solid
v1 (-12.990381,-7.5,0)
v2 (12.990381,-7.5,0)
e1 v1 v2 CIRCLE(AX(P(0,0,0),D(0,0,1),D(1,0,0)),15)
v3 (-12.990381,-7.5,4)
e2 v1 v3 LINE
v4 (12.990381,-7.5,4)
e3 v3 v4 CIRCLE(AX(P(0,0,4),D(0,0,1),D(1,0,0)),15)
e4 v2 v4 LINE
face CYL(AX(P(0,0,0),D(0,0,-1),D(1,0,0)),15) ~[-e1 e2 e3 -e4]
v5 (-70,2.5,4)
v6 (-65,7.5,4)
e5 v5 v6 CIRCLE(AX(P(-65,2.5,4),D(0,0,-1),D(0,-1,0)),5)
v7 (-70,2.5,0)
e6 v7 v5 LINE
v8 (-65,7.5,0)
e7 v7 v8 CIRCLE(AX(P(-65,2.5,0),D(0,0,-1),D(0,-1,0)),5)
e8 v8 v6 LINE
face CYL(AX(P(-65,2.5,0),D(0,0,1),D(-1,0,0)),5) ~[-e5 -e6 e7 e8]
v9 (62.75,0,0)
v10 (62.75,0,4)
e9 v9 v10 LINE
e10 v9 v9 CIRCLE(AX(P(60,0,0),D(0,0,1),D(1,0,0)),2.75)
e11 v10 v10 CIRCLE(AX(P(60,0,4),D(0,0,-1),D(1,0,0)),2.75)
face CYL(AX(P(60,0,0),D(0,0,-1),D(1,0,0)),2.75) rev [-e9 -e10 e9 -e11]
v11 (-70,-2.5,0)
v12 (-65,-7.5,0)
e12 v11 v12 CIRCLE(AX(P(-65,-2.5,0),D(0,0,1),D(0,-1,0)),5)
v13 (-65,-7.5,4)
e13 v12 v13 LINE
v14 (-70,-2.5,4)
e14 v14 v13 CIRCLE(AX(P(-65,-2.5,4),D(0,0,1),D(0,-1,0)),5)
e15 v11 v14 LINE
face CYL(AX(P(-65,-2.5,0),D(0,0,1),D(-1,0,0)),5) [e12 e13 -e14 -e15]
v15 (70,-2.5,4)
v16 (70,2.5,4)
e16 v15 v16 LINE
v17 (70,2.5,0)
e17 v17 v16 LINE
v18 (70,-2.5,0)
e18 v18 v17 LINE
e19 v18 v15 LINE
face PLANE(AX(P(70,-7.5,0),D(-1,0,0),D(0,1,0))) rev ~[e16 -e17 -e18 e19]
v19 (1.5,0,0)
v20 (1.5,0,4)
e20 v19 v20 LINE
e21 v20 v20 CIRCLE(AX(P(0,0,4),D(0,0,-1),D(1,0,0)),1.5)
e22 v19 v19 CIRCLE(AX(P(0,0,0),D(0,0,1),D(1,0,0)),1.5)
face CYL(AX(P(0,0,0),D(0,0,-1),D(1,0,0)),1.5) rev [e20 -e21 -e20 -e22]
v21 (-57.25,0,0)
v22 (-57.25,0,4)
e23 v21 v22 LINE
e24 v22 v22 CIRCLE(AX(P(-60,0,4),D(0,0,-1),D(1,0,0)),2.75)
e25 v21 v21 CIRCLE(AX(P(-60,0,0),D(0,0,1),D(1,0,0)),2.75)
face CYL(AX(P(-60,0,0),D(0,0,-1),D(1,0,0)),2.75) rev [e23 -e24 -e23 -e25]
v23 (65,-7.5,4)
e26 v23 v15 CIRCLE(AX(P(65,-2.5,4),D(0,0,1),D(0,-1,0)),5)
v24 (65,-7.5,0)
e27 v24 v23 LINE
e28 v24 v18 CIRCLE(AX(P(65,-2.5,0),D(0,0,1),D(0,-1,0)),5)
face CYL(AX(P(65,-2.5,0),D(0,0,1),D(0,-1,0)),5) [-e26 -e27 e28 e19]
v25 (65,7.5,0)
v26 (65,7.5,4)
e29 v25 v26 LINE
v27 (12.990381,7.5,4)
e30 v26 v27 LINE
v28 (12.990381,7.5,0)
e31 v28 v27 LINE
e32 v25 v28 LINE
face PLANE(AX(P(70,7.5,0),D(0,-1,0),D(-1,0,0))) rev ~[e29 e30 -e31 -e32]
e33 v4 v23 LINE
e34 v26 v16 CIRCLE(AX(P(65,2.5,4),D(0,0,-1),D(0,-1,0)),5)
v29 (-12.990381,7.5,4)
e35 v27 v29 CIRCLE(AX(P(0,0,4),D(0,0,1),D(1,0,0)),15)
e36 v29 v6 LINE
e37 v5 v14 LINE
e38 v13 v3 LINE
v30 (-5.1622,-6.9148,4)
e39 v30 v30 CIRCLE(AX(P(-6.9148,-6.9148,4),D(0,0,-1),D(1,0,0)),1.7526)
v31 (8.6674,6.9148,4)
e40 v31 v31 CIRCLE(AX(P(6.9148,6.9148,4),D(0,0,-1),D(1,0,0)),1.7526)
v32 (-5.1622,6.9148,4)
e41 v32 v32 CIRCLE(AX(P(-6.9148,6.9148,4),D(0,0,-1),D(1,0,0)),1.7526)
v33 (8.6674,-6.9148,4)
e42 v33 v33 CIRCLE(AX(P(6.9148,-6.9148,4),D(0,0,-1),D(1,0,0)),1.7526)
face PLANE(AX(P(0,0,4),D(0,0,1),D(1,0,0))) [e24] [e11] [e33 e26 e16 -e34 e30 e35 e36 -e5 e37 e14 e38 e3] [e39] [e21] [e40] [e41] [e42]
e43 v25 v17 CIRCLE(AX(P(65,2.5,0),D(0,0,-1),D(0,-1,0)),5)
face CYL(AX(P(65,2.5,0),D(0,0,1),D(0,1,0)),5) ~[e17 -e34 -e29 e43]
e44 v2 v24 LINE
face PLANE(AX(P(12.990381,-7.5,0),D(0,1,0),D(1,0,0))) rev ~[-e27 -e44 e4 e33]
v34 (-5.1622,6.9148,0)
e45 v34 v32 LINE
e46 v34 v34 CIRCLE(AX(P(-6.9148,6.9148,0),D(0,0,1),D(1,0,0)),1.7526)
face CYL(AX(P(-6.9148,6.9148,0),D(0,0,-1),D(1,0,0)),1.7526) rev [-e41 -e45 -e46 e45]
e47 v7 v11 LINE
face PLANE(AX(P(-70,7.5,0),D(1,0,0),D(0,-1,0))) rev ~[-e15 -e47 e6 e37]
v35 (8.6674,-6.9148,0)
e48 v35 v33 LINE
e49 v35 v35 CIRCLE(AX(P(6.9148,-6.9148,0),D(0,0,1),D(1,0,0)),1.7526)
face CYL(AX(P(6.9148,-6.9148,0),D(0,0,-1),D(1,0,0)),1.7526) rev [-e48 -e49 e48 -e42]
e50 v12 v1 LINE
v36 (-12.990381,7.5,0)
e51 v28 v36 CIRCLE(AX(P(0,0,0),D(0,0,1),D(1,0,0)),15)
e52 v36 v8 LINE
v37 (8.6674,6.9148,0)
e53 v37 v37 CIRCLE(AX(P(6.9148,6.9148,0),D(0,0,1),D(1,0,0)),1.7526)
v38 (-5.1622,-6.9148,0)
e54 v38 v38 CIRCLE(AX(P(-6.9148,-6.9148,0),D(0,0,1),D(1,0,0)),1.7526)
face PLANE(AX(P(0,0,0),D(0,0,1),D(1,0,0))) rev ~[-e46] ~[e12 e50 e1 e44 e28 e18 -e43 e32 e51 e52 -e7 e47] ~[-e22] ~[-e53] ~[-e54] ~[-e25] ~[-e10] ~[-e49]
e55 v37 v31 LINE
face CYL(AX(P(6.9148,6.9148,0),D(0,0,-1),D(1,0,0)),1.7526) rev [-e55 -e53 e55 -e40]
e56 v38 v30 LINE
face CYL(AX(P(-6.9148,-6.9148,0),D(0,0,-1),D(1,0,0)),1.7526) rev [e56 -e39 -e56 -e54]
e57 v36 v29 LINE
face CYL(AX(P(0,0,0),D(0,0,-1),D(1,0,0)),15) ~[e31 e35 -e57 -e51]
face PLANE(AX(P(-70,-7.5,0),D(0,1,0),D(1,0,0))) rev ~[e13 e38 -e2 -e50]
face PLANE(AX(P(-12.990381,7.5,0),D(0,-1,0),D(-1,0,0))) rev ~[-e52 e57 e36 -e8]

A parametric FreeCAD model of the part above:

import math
import FreeCAD as App
import Part
import Sketcher
from FreeCAD import Vector


def edges_at(feature, points):
    """Names of the edges that pass closest to the given points."""
    edges = feature.Shape.Edges
    near = lambda p: min(range(len(edges)), key=lambda i: edges[i].distToShape(Part.Vertex(*p))[0])
    return sorted({f"Edge{near(p) + 1}" for p in points})

doc = App.newDocument("Part")
body = doc.addObject("PartDesign::Body", "Body")

# Sketch on XY plane
sketch1 = body.newObject("Sketcher::SketchObject", "Sketch")
sketch1.AttachmentSupport = (doc.getObject("XY_Plane"), [""])
sketch1.MapMode = "FlatFace"
sketch1.addGeometry([
    Part.LineSegment(Vector(-70, 7.5, 0), Vector(-70, -7.5, 0)),  # 0
    Part.LineSegment(Vector(-70, -7.5, 0), Vector(-12.990381, -7.5, 0)),  # 1
    Part.ArcOfCircle(Part.Circle(Vector(0, 0, 0), Vector(0, 0, 1), 15), math.radians(-150), math.radians(-30)),  # 2
    Part.LineSegment(Vector(12.990381, -7.5, 0), Vector(70, -7.5, 0)),  # 3
    Part.LineSegment(Vector(70, -7.5, 0), Vector(70, 7.5, 0)),  # 4
    Part.LineSegment(Vector(70, 7.5, 0), Vector(12.990381, 7.5, 0)),  # 5
    Part.ArcOfCircle(Part.Circle(Vector(0, 0, 0), Vector(0, 0, 1), 15), math.radians(30), math.radians(150)),  # 6
    Part.LineSegment(Vector(-12.990381, 7.5, 0), Vector(-70, 7.5, 0)),  # 7
], False)
sketch1.addConstraint([
    Sketcher.Constraint("Coincident", 0, 2, 1, 1),
    Sketcher.Constraint("Coincident", 1, 2, 2, 1),
    Sketcher.Constraint("Coincident", 2, 2, 3, 1),
    Sketcher.Constraint("Coincident", 3, 2, 4, 1),
    Sketcher.Constraint("Coincident", 4, 2, 5, 1),
    Sketcher.Constraint("Coincident", 5, 2, 6, 1),
    Sketcher.Constraint("Coincident", 6, 2, 7, 1),
    Sketcher.Constraint("Coincident", 7, 2, 0, 1),
    Sketcher.Constraint("Vertical", 0),
    Sketcher.Constraint("Horizontal", 1),
    Sketcher.Constraint("Horizontal", 3),
    Sketcher.Constraint("Vertical", 4),
    Sketcher.Constraint("Horizontal", 5),
    Sketcher.Constraint("Horizontal", 7),
    Sketcher.Constraint("Coincident", 2, 3, -1, 1),
    Sketcher.Constraint("Coincident", 6, 3, -1, 1),
    Sketcher.Constraint("Equal", 2, 6),
    Sketcher.Constraint("Symmetric", 0, 2, 4, 2, -1, 1),
    Sketcher.Constraint("Horizontal", 1, 2, 2, 2),
    Sketcher.Constraint("Horizontal", 5, 2, 6, 2),
    Sketcher.Constraint("Radius", 2, 15.0),
    Sketcher.Constraint("DistanceY", 0, 2, 0, 1, 15.0),
    Sketcher.Constraint("DistanceX", 0, 2, 3, 2, 140.0),
])
pad1 = body.newObject("PartDesign::Pad", "Pad")
pad1.Profile = sketch1
pad1.Length = 4

# Sketch on XY plane
sketch2 = body.newObject("Sketcher::SketchObject", "Sketch001")
sketch2.AttachmentSupport = (doc.getObject("XY_Plane"), [""])
sketch2.MapMode = "FlatFace"
sketch2.addGeometry([
    Part.Circle(Vector(-6.9148, -6.9148, 0), Vector(0, 0, 1), 1.7526),  # 0
    Part.Circle(Vector(-6.9148, 6.9148, 0), Vector(0, 0, 1), 1.7526),  # 1
    Part.Circle(Vector(6.9148, -6.9148, 0), Vector(0, 0, 1), 1.7526),  # 2
    Part.Circle(Vector(6.9148, 6.9148, 0), Vector(0, 0, 1), 1.7526),  # 3
    Part.Circle(Vector(-60, 0, 0), Vector(0, 0, 1), 2.75),  # 4
    Part.Circle(Vector(60, 0, 0), Vector(0, 0, 1), 2.75),  # 5
    Part.Circle(Vector(0, 0, 0), Vector(0, 0, 1), 1.5),  # 6
], False)
sketch2.addConstraint([
    Sketcher.Constraint("Coincident", 6, 3, -1, 1),
    Sketcher.Constraint("Equal", 0, 1),
    Sketcher.Constraint("Equal", 1, 2),
    Sketcher.Constraint("Equal", 2, 3),
    Sketcher.Constraint("Equal", 4, 5),
    Sketcher.Constraint("Symmetric", 1, 3, 2, 3, -1, 1),
    Sketcher.Constraint("Symmetric", 0, 3, 3, 3, -1, 1),
    Sketcher.Constraint("Symmetric", 4, 3, 5, 3, -1, 1),
    Sketcher.Constraint("Symmetric", 0, 3, 2, 3, -2),
    Sketcher.Constraint("PointOnObject", 4, 3, -1),
    Sketcher.Constraint("Diameter", 6, 3.0),
    Sketcher.Constraint("Diameter", 4, 5.5),
    Sketcher.Constraint("Diameter", 0, 3.5052),
    Sketcher.Constraint("DistanceX", 4, 3, -1, 1, 60.0),
    Sketcher.Constraint("DistanceX", 0, 3, -1, 1, 6.9148),
    Sketcher.Constraint("DistanceY", 0, 3, -1, 1, 6.9148),
])
pocket1 = body.newObject("PartDesign::Pocket", "Pocket")
pocket1.Profile = sketch2
pocket1.Type = "ThroughAll"
pocket1.Reversed = True
doc.recompute()

fillet = body.newObject("PartDesign::Fillet", "Fillet")
fillet.Base = (pocket1, edges_at(pocket1, [
    (70, -7.5, 2),
    (70, 7.5, 2),
    (-70, -7.5, 2),
    (-70, 7.5, 2),
]))
fillet.Radius = 5

doc.recompute()
